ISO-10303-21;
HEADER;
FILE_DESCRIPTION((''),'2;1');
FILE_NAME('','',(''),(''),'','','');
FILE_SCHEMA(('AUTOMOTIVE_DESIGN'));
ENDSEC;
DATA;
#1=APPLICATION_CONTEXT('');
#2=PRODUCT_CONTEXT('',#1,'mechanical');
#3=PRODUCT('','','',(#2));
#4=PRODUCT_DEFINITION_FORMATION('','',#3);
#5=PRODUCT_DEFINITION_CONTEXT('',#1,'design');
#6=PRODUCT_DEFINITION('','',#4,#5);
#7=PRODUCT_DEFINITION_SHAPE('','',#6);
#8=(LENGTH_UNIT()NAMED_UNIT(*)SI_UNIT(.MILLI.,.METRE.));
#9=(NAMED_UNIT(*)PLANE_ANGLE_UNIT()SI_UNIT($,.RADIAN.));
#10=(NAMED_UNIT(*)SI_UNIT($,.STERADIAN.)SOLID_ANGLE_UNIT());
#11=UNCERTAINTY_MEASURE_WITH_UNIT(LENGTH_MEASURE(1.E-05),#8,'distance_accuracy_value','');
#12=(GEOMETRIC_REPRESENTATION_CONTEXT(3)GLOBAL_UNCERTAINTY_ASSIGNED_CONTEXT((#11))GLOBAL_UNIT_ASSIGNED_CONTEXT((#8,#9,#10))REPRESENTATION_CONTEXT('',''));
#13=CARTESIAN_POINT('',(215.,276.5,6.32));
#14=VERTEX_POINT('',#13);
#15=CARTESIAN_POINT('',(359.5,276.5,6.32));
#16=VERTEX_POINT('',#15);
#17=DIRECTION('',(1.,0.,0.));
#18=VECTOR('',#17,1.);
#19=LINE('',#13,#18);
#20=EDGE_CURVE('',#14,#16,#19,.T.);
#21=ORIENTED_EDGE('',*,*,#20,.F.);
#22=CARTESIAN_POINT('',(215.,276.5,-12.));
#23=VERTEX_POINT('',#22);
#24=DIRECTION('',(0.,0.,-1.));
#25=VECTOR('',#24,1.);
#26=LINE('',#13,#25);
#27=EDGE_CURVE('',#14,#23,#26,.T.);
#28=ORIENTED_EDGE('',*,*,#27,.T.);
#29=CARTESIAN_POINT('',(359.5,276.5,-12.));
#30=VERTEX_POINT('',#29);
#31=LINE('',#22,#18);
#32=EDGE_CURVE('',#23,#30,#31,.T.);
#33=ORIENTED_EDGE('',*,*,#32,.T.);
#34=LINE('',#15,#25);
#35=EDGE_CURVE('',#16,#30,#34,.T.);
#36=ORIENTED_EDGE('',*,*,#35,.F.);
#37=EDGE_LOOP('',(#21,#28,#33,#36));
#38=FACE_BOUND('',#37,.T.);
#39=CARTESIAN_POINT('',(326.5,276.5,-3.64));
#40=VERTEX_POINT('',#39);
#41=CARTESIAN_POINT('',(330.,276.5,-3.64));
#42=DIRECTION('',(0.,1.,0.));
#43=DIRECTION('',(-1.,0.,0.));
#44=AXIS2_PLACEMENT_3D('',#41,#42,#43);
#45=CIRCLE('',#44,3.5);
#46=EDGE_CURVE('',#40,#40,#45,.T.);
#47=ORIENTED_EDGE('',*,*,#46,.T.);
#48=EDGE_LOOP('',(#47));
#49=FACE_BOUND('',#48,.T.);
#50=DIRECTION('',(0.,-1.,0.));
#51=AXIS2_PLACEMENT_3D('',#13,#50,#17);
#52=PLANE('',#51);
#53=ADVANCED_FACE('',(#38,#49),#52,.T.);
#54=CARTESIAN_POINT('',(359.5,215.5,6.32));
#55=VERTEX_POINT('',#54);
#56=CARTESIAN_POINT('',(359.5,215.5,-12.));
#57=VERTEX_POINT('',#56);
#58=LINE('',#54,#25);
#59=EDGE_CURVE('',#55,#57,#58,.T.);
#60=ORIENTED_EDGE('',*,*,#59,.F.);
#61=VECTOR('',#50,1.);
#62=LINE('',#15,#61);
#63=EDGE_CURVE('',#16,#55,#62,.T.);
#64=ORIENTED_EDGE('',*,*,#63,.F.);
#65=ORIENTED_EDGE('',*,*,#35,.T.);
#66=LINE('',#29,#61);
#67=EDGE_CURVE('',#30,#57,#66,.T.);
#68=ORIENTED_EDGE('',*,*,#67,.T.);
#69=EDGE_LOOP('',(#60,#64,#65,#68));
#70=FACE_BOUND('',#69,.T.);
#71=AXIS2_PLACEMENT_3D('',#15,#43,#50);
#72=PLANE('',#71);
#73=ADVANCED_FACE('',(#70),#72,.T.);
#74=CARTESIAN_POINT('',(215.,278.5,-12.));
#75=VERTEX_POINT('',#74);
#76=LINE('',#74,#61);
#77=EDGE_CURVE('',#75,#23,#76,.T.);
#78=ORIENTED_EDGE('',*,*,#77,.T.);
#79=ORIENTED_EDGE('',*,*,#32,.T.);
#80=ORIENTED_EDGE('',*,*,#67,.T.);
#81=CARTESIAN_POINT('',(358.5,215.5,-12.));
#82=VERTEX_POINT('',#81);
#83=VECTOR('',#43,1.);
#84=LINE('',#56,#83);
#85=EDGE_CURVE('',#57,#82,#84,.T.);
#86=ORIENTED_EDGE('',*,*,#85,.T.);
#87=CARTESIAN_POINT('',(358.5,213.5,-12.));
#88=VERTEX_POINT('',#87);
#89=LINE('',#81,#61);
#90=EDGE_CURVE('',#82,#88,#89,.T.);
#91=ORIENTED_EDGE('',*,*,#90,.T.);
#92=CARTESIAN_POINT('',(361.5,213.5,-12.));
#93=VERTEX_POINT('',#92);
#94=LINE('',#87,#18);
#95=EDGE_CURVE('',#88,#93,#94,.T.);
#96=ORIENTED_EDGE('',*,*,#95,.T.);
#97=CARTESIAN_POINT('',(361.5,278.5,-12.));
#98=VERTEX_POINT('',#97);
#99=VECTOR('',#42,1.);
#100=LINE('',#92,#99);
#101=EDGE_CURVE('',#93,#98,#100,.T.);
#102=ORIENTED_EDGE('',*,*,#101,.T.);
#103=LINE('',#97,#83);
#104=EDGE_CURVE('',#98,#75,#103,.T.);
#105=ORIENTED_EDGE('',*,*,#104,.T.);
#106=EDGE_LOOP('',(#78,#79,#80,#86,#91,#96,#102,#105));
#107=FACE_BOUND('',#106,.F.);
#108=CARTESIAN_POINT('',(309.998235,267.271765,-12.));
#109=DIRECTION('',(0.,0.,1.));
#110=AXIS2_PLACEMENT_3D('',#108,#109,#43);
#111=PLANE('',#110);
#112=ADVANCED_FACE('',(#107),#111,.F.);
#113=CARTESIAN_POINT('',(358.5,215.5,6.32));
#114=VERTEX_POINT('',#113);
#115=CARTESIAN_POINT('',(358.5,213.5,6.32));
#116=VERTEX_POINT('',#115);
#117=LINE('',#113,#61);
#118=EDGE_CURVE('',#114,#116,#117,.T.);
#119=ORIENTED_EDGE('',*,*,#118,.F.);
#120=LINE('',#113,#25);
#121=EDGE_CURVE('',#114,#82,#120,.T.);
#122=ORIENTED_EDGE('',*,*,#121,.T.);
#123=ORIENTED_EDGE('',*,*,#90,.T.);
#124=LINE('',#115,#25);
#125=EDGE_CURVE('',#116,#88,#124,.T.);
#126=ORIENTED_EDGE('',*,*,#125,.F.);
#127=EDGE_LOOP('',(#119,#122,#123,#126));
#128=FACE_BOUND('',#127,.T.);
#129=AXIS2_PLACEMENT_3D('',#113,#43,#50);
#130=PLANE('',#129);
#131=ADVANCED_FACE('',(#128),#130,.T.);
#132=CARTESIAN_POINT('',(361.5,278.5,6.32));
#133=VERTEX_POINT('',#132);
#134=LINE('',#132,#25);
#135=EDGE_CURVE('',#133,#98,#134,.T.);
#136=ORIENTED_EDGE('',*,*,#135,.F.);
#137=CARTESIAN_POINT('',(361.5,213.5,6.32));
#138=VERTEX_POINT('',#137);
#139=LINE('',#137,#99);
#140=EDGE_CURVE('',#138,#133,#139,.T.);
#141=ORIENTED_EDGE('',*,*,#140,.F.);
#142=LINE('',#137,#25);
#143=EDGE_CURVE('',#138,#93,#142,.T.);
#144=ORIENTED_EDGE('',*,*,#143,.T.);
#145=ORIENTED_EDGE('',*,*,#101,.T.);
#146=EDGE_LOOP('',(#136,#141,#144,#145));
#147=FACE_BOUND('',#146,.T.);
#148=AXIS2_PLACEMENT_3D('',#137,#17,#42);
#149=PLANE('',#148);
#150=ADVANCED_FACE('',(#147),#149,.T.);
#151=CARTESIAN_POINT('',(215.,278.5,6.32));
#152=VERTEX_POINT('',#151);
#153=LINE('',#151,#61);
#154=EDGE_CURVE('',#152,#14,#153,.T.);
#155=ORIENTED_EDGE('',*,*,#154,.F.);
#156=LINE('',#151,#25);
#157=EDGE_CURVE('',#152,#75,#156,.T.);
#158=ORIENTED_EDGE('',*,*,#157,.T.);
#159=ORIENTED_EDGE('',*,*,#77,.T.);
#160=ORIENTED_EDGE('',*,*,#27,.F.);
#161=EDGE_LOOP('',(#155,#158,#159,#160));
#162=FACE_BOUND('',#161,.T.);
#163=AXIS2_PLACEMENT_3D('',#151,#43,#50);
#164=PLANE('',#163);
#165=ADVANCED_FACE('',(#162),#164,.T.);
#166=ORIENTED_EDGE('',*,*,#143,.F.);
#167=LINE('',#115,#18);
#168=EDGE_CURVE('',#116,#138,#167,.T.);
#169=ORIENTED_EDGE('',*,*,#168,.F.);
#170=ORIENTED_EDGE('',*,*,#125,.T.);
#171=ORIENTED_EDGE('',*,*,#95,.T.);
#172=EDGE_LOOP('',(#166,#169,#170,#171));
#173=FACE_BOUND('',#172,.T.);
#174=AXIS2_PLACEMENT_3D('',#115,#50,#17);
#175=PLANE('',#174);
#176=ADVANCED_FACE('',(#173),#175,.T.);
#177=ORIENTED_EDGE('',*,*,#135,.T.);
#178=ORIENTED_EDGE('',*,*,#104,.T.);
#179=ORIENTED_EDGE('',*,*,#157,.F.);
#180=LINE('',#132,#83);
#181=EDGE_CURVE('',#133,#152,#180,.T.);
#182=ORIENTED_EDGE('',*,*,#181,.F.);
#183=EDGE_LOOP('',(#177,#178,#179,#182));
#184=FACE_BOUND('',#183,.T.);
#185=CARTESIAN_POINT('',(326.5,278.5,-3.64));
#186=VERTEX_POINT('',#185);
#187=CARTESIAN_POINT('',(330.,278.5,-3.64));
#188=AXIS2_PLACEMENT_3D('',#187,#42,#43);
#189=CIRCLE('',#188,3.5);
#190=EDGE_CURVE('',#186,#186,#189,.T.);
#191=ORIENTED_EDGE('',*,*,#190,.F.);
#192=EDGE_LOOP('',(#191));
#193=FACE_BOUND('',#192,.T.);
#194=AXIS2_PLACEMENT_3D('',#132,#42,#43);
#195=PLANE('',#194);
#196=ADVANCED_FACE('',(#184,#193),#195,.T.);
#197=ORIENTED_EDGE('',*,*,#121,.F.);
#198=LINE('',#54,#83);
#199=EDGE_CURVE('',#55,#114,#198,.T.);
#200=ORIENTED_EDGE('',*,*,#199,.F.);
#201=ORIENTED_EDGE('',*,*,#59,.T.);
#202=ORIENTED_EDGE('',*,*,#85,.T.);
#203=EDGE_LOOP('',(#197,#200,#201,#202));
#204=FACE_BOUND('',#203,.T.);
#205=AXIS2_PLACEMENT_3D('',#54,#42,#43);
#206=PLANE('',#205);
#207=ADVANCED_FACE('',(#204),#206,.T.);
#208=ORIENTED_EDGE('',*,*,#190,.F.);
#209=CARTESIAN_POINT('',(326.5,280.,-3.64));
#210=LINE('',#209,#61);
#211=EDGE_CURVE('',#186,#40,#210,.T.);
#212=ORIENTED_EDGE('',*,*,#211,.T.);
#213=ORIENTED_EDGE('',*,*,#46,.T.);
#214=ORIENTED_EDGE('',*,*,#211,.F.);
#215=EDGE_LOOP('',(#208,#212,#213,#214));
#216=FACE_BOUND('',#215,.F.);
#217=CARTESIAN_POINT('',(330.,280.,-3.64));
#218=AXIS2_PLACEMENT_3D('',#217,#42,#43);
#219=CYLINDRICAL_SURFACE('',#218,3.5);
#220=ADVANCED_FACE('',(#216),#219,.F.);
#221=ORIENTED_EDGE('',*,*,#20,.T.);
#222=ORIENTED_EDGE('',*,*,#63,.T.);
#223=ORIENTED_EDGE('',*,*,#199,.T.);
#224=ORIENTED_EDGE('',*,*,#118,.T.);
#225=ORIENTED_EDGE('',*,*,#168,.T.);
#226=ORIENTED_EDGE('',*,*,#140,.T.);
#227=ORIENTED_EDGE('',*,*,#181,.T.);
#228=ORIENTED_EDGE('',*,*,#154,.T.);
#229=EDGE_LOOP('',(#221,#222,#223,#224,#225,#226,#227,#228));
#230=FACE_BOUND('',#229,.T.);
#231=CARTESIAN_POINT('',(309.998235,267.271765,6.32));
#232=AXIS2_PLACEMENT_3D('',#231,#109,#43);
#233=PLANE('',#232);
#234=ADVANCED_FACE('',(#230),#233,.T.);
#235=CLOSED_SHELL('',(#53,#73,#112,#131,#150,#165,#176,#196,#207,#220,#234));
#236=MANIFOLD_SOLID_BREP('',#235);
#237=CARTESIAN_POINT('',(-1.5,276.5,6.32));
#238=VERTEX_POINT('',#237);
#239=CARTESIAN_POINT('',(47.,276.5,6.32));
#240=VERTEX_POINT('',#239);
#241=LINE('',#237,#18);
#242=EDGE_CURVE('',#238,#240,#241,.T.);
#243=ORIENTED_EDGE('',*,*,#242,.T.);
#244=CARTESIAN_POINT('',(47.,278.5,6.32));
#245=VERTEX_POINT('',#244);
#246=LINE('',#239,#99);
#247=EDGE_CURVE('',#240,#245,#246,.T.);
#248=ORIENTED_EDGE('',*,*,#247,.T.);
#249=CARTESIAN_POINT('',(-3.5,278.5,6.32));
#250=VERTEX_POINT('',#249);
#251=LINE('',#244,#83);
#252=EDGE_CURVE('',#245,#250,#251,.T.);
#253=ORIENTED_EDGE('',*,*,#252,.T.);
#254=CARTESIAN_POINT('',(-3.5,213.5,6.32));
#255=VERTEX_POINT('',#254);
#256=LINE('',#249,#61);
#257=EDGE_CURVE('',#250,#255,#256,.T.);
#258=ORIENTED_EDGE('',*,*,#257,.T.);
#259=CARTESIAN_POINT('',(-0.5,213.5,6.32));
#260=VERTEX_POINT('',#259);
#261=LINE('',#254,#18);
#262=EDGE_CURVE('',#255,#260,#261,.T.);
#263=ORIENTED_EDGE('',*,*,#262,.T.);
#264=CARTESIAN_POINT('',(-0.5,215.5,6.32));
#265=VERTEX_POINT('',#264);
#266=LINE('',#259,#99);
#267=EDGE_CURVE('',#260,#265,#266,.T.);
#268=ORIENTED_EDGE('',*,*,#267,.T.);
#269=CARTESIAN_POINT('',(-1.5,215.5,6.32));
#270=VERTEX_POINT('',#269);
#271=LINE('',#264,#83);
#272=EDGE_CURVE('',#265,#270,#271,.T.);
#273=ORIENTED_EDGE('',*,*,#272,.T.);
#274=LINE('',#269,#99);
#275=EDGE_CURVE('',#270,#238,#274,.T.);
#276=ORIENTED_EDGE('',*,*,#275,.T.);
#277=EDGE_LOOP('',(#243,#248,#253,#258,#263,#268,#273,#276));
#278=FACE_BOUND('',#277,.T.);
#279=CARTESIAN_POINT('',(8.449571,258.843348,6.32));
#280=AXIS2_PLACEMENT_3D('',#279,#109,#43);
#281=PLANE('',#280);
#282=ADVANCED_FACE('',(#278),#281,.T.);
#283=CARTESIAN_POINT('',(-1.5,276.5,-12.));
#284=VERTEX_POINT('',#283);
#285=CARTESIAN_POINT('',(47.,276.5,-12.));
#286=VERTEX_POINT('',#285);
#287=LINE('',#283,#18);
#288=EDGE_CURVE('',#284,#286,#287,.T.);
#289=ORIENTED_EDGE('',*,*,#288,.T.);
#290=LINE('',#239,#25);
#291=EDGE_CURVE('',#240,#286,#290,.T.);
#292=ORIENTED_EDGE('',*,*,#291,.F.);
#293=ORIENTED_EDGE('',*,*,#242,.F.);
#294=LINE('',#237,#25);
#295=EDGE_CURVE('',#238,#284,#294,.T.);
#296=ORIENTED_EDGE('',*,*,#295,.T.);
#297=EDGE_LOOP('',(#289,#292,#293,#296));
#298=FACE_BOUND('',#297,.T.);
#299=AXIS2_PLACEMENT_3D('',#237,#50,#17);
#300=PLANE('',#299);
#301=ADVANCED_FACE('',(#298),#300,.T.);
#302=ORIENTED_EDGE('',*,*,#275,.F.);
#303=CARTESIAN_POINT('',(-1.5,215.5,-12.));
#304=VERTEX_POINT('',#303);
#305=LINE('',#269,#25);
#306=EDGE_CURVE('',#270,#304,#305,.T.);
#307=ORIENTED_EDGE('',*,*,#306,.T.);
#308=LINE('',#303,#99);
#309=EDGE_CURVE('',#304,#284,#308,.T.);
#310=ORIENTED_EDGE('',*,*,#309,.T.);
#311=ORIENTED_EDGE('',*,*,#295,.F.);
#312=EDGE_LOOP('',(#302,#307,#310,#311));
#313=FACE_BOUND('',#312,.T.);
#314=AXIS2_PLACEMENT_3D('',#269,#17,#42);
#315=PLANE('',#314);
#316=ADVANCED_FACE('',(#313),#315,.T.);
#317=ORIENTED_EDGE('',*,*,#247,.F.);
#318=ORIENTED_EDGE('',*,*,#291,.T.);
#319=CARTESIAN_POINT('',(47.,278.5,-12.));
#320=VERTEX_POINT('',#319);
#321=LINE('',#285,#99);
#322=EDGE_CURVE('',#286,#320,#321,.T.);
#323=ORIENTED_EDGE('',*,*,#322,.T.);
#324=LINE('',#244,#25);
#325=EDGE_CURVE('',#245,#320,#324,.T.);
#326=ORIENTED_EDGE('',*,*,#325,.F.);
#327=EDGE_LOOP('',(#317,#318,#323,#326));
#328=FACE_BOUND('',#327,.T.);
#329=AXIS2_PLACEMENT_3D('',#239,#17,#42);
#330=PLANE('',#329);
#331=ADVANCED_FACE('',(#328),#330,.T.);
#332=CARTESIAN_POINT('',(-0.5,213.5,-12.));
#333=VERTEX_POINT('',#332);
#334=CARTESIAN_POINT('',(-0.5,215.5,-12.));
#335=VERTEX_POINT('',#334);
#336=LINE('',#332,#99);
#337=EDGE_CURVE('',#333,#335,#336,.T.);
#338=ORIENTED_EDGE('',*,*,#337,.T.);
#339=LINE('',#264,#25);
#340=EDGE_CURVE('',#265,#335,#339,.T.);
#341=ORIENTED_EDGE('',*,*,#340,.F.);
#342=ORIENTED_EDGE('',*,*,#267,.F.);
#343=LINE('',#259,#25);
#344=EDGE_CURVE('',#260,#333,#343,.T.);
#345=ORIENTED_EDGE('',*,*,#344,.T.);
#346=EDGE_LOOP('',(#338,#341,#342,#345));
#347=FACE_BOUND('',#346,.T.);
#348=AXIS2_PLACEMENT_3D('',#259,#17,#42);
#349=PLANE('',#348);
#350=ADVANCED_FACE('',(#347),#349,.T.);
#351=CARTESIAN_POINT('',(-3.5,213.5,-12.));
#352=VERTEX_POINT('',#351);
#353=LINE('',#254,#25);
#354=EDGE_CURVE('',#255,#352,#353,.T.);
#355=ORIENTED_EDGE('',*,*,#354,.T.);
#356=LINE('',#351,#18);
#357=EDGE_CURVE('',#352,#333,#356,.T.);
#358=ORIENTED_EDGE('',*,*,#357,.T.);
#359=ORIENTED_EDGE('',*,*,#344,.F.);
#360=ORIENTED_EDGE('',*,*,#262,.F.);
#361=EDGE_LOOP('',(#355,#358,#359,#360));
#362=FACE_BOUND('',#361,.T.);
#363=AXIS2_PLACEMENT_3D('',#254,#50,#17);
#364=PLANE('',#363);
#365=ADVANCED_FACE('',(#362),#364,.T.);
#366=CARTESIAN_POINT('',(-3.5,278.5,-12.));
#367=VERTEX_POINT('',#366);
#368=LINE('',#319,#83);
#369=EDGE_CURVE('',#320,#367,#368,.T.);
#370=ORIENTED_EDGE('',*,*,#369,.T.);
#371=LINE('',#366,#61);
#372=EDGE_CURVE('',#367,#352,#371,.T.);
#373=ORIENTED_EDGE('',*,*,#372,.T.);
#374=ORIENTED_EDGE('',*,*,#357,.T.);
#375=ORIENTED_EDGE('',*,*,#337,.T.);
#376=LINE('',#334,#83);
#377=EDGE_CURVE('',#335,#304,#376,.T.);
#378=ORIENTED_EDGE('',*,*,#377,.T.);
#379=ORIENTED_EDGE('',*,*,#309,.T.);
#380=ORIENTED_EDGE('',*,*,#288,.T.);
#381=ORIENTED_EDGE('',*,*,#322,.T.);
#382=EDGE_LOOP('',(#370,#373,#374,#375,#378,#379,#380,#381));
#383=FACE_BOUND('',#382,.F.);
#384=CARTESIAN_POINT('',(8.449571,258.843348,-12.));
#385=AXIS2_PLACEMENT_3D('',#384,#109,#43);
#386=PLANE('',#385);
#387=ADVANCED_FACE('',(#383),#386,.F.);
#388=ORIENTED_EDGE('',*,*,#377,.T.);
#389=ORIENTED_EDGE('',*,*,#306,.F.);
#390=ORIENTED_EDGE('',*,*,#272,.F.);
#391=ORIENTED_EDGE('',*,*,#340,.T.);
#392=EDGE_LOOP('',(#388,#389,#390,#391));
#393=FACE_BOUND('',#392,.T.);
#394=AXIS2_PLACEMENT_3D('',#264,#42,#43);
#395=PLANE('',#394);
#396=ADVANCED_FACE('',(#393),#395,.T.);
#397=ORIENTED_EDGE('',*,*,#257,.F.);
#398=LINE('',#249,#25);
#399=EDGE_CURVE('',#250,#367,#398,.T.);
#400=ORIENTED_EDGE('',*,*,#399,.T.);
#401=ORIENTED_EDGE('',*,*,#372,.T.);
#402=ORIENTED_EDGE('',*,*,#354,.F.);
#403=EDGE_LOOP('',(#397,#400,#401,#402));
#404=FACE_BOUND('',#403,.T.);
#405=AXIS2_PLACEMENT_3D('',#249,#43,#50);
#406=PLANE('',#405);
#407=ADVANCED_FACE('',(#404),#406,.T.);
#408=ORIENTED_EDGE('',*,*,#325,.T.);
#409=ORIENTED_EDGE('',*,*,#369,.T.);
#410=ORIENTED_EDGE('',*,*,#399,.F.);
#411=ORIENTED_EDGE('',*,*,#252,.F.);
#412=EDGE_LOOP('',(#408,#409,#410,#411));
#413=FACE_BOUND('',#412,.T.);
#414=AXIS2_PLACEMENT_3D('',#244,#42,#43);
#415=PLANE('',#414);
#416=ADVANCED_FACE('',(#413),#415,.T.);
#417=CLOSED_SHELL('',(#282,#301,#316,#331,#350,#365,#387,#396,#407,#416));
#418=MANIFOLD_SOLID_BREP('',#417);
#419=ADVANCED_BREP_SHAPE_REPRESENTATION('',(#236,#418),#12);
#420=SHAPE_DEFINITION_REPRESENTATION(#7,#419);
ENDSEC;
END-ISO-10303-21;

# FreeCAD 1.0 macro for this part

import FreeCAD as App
import Part
import Sketcher
from FreeCAD import Vector


def add_polygon(sketch, points):
    """Adds a closed chain of lines whose ends are joined by coincident constraints."""
    first, n = sketch.GeometryCount, len(points)
    for a, b in zip(points, points[1:] + points[:1]):
        sketch.addGeometry(Part.LineSegment(App.Vector(*a, 0), App.Vector(*b, 0)), False)
    for i in range(n):
        sketch.addConstraint(Sketcher.Constraint("Coincident", first + i, 2, first + (i + 1) % n, 1))

doc = App.newDocument("Part")
params = doc.addObject("Spreadsheet::Sheet", "Params")
for row, (alias, value) in enumerate([
    ("sketch1_diameter", "7 mm"),
    ("pad1_length", "10 mm"),
    ("sketch2_width", "3 mm"),
    ("sketch2_width2", "1 mm"),
    ("sketch2_height", "65 mm"),
    ("sketch2_height2", "2 mm"),
    ("sketch2_width3", "144.5 mm"),
    ("pad2_length", "18.32 mm"),
], start=1):
    params.set(f"A{row}", alias)
    params.set(f"B{row}", "=" + value)
    params.setAlias(f"B{row}", alias)

body = doc.addObject("PartDesign::Body", "Body")

# Sketch on XZ plane
sketch1 = body.newObject("Sketcher::SketchObject", "Sketch")
sketch1.AttachmentSupport = (doc.getObject("XZ_Plane"), [""])
sketch1.MapMode = "FlatFace"
sketch1.AttachmentOffset = App.Placement(Vector(0, 0, -280), App.Rotation())
sketch1.addGeometry(Part.Circle(Vector(330, -3.6, 0), Vector(0, 0, 1), 3.5), False)
sketch1.addConstraint([
    Sketcher.Constraint("Diameter", 0, 7.0),
    Sketcher.Constraint("DistanceX", -1, 1, 0, 3, 330.0),
    Sketcher.Constraint("DistanceY", 0, 3, -1, 1, 3.64),
])
sketch1.setExpression("Constraints[0]", "Params.sketch1_diameter")
pad1 = body.newObject("PartDesign::Pad", "Pad")
pad1.Profile = sketch1
pad1.setExpression("Length", "Params.pad1_length")
body2 = doc.addObject("PartDesign::Body", "Body001")
body2.AllowCompound = True

# Sketch on XY plane
sketch2 = body2.newObject("Sketcher::SketchObject", "Sketch001")
sketch2.AttachmentSupport = (doc.getObject("XY_Plane001"), [""])
sketch2.MapMode = "FlatFace"
sketch2.AttachmentOffset = App.Placement(Vector(0, 0, 6.32), App.Rotation())
add_polygon(sketch2, [(361.5, 278.5), (361.5, 213.5), (358.5, 213.5), (358.5, 215.5), (359.5, 215.5), (359.5, 276.5), (215, 276.5), (215, 278.5)])  # lines 0-7
add_polygon(sketch2, [(-3.5, 213.5), (-3.5, 278.5), (47, 278.5), (47, 276.5), (-1.5, 276.5), (-1.5, 215.5), (-0.5, 215.5), (-0.5, 213.5)])  # lines 8-15
sketch2.addConstraint([
    Sketcher.Constraint("Vertical", 0),
    Sketcher.Constraint("Horizontal", 1),
    Sketcher.Constraint("Vertical", 2),
    Sketcher.Constraint("Horizontal", 3),
    Sketcher.Constraint("Vertical", 4),
    Sketcher.Constraint("Horizontal", 5),
    Sketcher.Constraint("Vertical", 6),
    Sketcher.Constraint("Horizontal", 7),
    Sketcher.Constraint("Vertical", 8),
    Sketcher.Constraint("Horizontal", 9),
    Sketcher.Constraint("Vertical", 10),
    Sketcher.Constraint("Horizontal", 11),
    Sketcher.Constraint("Vertical", 12),
    Sketcher.Constraint("Horizontal", 13),
    Sketcher.Constraint("Vertical", 14),
    Sketcher.Constraint("Horizontal", 15),
    Sketcher.Constraint("Horizontal", 7, 2, 8, 2),
    Sketcher.Constraint("Horizontal", 5, 2, 10, 2),
    Sketcher.Constraint("Horizontal", 3, 2, 12, 2),
    Sketcher.Constraint("Horizontal", 1, 2, 14, 2),
    Sketcher.Constraint("Equal", 3, 13),
    Sketcher.Constraint("Equal", 1, 15),
    Sketcher.Constraint("Equal", 2, 6),
    Sketcher.Constraint("DistanceX", 1, 2, 1, 1, 3.0),
    Sketcher.Constraint("DistanceX", 3, 1, 3, 2, 1.0),
    Sketcher.Constraint("DistanceY", 0, 2, 0, 1, 65.0),
    Sketcher.Constraint("DistanceY", 2, 1, 2, 2, 2.0),
    Sketcher.Constraint("DistanceX", 5, 2, 5, 1, 144.5),
    Sketcher.Constraint("DistanceX", 9, 1, 9, 2, 50.5),
    Sketcher.Constraint("DistanceX", -1, 1, 5, 2, 215.0),
    Sketcher.Constraint("DistanceX", -1, 1, 9, 2, 47.0),
    Sketcher.Constraint("DistanceY", -1, 1, 0, 2, 213.5),
])
sketch2.setExpression("Constraints[39]", "Params.sketch2_width")
sketch2.setExpression("Constraints[40]", "Params.sketch2_width2")
sketch2.setExpression("Constraints[41]", "Params.sketch2_height")
sketch2.setExpression("Constraints[42]", "Params.sketch2_height2")
sketch2.setExpression("Constraints[43]", "Params.sketch2_width3")
pad2 = body2.newObject("PartDesign::Pad", "Pad001")
pad2.Profile = sketch2
pad2.setExpression("Length", "Params.pad2_length")
pad2.Reversed = True
doc.recompute()

boolean = body2.newObject("PartDesign::Boolean", "Boolean")
boolean.Type = "Cut"
boolean.addObjects([body])

doc.recompute()
